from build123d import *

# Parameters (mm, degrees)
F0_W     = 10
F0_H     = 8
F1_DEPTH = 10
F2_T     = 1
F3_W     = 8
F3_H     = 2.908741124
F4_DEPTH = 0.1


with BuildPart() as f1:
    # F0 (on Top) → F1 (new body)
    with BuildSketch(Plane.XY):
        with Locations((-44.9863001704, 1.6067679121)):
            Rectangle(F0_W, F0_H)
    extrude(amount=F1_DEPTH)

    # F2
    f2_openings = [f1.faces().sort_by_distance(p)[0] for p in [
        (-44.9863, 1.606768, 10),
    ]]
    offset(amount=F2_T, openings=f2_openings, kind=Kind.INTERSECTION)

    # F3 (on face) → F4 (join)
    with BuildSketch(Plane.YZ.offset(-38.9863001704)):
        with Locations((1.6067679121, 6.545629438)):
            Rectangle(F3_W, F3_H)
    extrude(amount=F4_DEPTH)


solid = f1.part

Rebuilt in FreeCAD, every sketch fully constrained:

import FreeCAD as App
import Part
import Sketcher

V = App.Vector


def faces_at(feature, points):
    """Names of the faces that lie closest to the given points."""
    faces = feature.Shape.Faces
    near = lambda p: min(range(len(faces)), key=lambda i: faces[i].distToShape(Part.Vertex(*p))[0])
    return sorted({f"Face{near(p) + 1}" for p in points})


def add_polygon(sketch, points):
    """Adds a closed chain of lines whose ends are joined by coincident constraints."""
    first, n = sketch.GeometryCount, len(points)
    for a, b in zip(points, points[1:] + points[:1]):
        sketch.addGeometry(Part.LineSegment(App.Vector(*a, 0), App.Vector(*b, 0)), False)
    for i in range(n):
        sketch.addConstraint(Sketcher.Constraint("Coincident", first + i, 2, first + (i + 1) % n, 1))

doc = App.newDocument("Part")
body = doc.addObject("PartDesign::Body", "Body")

# Sketch on XY plane
sketch1 = body.newObject("Sketcher::SketchObject", "Sketch")
sketch1.AttachmentSupport = (doc.getObject("XY_Plane"), [""])
sketch1.MapMode = "FlatFace"
add_polygon(sketch1, [(-50, 6), (-50, -2), (-40, -2), (-40, 6)])  # lines 0-3
sketch1.addConstraint(Sketcher.Constraint("Vertical", 0))
sketch1.addConstraint(Sketcher.Constraint("Horizontal", 1))
sketch1.addConstraint(Sketcher.Constraint("Vertical", 2))
sketch1.addConstraint(Sketcher.Constraint("Horizontal", 3))
sketch1.addConstraint(Sketcher.Constraint("DistanceX", 1, 1, 1, 2, 10.0))
sketch1.addConstraint(Sketcher.Constraint("DistanceY", 0, 2, 0, 1, 8.0))
sketch1.addConstraint(Sketcher.Constraint("DistanceX", 0, 2, -1, 1, 49.9863))
sketch1.addConstraint(Sketcher.Constraint("DistanceY", 0, 2, -1, 1, 2.393232))
pad1 = body.newObject("PartDesign::Pad", "Pad")
pad1.Profile = sketch1
pad1.Length = 10
doc.recompute()

thickness = body.newObject("PartDesign::Thickness", "Thickness")
thickness.Base = (pad1, faces_at(pad1, [(-44.986, 1.607, 10)]))
thickness.Value = 1
thickness.Reversed = False
thickness.Join = "Intersection"

# Sketch on YZ plane
sketch2 = body.newObject("Sketcher::SketchObject", "Sketch001")
sketch2.AttachmentSupport = (doc.getObject("YZ_Plane"), [""])
sketch2.MapMode = "FlatFace"
sketch2.AttachmentOffset = App.Placement(V(0, 0, -38.9863), App.Rotation())
add_polygon(sketch2, [(-2.4, 8), (-2.4, 5.1), (5.6, 5.1), (5.6, 8)])  # lines 0-3
sketch2.addConstraint(Sketcher.Constraint("Vertical", 0))
sketch2.addConstraint(Sketcher.Constraint("Horizontal", 1))
sketch2.addConstraint(Sketcher.Constraint("Vertical", 2))
sketch2.addConstraint(Sketcher.Constraint("Horizontal", 3))
sketch2.addConstraint(Sketcher.Constraint("DistanceX", 1, 1, 1, 2, 8.0))
sketch2.addConstraint(Sketcher.Constraint("DistanceY", -1, 1, 2, 2, 8.0))
sketch2.addConstraint(Sketcher.Constraint("DistanceY", 0, 2, 0, 1, 2.908741))
sketch2.addConstraint(Sketcher.Constraint("DistanceX", 0, 2, -1, 1, 2.393232))
pad2 = body.newObject("PartDesign::Pad", "Pad001")
pad2.Profile = sketch2
pad2.Length = 0.1

doc.recompute()
